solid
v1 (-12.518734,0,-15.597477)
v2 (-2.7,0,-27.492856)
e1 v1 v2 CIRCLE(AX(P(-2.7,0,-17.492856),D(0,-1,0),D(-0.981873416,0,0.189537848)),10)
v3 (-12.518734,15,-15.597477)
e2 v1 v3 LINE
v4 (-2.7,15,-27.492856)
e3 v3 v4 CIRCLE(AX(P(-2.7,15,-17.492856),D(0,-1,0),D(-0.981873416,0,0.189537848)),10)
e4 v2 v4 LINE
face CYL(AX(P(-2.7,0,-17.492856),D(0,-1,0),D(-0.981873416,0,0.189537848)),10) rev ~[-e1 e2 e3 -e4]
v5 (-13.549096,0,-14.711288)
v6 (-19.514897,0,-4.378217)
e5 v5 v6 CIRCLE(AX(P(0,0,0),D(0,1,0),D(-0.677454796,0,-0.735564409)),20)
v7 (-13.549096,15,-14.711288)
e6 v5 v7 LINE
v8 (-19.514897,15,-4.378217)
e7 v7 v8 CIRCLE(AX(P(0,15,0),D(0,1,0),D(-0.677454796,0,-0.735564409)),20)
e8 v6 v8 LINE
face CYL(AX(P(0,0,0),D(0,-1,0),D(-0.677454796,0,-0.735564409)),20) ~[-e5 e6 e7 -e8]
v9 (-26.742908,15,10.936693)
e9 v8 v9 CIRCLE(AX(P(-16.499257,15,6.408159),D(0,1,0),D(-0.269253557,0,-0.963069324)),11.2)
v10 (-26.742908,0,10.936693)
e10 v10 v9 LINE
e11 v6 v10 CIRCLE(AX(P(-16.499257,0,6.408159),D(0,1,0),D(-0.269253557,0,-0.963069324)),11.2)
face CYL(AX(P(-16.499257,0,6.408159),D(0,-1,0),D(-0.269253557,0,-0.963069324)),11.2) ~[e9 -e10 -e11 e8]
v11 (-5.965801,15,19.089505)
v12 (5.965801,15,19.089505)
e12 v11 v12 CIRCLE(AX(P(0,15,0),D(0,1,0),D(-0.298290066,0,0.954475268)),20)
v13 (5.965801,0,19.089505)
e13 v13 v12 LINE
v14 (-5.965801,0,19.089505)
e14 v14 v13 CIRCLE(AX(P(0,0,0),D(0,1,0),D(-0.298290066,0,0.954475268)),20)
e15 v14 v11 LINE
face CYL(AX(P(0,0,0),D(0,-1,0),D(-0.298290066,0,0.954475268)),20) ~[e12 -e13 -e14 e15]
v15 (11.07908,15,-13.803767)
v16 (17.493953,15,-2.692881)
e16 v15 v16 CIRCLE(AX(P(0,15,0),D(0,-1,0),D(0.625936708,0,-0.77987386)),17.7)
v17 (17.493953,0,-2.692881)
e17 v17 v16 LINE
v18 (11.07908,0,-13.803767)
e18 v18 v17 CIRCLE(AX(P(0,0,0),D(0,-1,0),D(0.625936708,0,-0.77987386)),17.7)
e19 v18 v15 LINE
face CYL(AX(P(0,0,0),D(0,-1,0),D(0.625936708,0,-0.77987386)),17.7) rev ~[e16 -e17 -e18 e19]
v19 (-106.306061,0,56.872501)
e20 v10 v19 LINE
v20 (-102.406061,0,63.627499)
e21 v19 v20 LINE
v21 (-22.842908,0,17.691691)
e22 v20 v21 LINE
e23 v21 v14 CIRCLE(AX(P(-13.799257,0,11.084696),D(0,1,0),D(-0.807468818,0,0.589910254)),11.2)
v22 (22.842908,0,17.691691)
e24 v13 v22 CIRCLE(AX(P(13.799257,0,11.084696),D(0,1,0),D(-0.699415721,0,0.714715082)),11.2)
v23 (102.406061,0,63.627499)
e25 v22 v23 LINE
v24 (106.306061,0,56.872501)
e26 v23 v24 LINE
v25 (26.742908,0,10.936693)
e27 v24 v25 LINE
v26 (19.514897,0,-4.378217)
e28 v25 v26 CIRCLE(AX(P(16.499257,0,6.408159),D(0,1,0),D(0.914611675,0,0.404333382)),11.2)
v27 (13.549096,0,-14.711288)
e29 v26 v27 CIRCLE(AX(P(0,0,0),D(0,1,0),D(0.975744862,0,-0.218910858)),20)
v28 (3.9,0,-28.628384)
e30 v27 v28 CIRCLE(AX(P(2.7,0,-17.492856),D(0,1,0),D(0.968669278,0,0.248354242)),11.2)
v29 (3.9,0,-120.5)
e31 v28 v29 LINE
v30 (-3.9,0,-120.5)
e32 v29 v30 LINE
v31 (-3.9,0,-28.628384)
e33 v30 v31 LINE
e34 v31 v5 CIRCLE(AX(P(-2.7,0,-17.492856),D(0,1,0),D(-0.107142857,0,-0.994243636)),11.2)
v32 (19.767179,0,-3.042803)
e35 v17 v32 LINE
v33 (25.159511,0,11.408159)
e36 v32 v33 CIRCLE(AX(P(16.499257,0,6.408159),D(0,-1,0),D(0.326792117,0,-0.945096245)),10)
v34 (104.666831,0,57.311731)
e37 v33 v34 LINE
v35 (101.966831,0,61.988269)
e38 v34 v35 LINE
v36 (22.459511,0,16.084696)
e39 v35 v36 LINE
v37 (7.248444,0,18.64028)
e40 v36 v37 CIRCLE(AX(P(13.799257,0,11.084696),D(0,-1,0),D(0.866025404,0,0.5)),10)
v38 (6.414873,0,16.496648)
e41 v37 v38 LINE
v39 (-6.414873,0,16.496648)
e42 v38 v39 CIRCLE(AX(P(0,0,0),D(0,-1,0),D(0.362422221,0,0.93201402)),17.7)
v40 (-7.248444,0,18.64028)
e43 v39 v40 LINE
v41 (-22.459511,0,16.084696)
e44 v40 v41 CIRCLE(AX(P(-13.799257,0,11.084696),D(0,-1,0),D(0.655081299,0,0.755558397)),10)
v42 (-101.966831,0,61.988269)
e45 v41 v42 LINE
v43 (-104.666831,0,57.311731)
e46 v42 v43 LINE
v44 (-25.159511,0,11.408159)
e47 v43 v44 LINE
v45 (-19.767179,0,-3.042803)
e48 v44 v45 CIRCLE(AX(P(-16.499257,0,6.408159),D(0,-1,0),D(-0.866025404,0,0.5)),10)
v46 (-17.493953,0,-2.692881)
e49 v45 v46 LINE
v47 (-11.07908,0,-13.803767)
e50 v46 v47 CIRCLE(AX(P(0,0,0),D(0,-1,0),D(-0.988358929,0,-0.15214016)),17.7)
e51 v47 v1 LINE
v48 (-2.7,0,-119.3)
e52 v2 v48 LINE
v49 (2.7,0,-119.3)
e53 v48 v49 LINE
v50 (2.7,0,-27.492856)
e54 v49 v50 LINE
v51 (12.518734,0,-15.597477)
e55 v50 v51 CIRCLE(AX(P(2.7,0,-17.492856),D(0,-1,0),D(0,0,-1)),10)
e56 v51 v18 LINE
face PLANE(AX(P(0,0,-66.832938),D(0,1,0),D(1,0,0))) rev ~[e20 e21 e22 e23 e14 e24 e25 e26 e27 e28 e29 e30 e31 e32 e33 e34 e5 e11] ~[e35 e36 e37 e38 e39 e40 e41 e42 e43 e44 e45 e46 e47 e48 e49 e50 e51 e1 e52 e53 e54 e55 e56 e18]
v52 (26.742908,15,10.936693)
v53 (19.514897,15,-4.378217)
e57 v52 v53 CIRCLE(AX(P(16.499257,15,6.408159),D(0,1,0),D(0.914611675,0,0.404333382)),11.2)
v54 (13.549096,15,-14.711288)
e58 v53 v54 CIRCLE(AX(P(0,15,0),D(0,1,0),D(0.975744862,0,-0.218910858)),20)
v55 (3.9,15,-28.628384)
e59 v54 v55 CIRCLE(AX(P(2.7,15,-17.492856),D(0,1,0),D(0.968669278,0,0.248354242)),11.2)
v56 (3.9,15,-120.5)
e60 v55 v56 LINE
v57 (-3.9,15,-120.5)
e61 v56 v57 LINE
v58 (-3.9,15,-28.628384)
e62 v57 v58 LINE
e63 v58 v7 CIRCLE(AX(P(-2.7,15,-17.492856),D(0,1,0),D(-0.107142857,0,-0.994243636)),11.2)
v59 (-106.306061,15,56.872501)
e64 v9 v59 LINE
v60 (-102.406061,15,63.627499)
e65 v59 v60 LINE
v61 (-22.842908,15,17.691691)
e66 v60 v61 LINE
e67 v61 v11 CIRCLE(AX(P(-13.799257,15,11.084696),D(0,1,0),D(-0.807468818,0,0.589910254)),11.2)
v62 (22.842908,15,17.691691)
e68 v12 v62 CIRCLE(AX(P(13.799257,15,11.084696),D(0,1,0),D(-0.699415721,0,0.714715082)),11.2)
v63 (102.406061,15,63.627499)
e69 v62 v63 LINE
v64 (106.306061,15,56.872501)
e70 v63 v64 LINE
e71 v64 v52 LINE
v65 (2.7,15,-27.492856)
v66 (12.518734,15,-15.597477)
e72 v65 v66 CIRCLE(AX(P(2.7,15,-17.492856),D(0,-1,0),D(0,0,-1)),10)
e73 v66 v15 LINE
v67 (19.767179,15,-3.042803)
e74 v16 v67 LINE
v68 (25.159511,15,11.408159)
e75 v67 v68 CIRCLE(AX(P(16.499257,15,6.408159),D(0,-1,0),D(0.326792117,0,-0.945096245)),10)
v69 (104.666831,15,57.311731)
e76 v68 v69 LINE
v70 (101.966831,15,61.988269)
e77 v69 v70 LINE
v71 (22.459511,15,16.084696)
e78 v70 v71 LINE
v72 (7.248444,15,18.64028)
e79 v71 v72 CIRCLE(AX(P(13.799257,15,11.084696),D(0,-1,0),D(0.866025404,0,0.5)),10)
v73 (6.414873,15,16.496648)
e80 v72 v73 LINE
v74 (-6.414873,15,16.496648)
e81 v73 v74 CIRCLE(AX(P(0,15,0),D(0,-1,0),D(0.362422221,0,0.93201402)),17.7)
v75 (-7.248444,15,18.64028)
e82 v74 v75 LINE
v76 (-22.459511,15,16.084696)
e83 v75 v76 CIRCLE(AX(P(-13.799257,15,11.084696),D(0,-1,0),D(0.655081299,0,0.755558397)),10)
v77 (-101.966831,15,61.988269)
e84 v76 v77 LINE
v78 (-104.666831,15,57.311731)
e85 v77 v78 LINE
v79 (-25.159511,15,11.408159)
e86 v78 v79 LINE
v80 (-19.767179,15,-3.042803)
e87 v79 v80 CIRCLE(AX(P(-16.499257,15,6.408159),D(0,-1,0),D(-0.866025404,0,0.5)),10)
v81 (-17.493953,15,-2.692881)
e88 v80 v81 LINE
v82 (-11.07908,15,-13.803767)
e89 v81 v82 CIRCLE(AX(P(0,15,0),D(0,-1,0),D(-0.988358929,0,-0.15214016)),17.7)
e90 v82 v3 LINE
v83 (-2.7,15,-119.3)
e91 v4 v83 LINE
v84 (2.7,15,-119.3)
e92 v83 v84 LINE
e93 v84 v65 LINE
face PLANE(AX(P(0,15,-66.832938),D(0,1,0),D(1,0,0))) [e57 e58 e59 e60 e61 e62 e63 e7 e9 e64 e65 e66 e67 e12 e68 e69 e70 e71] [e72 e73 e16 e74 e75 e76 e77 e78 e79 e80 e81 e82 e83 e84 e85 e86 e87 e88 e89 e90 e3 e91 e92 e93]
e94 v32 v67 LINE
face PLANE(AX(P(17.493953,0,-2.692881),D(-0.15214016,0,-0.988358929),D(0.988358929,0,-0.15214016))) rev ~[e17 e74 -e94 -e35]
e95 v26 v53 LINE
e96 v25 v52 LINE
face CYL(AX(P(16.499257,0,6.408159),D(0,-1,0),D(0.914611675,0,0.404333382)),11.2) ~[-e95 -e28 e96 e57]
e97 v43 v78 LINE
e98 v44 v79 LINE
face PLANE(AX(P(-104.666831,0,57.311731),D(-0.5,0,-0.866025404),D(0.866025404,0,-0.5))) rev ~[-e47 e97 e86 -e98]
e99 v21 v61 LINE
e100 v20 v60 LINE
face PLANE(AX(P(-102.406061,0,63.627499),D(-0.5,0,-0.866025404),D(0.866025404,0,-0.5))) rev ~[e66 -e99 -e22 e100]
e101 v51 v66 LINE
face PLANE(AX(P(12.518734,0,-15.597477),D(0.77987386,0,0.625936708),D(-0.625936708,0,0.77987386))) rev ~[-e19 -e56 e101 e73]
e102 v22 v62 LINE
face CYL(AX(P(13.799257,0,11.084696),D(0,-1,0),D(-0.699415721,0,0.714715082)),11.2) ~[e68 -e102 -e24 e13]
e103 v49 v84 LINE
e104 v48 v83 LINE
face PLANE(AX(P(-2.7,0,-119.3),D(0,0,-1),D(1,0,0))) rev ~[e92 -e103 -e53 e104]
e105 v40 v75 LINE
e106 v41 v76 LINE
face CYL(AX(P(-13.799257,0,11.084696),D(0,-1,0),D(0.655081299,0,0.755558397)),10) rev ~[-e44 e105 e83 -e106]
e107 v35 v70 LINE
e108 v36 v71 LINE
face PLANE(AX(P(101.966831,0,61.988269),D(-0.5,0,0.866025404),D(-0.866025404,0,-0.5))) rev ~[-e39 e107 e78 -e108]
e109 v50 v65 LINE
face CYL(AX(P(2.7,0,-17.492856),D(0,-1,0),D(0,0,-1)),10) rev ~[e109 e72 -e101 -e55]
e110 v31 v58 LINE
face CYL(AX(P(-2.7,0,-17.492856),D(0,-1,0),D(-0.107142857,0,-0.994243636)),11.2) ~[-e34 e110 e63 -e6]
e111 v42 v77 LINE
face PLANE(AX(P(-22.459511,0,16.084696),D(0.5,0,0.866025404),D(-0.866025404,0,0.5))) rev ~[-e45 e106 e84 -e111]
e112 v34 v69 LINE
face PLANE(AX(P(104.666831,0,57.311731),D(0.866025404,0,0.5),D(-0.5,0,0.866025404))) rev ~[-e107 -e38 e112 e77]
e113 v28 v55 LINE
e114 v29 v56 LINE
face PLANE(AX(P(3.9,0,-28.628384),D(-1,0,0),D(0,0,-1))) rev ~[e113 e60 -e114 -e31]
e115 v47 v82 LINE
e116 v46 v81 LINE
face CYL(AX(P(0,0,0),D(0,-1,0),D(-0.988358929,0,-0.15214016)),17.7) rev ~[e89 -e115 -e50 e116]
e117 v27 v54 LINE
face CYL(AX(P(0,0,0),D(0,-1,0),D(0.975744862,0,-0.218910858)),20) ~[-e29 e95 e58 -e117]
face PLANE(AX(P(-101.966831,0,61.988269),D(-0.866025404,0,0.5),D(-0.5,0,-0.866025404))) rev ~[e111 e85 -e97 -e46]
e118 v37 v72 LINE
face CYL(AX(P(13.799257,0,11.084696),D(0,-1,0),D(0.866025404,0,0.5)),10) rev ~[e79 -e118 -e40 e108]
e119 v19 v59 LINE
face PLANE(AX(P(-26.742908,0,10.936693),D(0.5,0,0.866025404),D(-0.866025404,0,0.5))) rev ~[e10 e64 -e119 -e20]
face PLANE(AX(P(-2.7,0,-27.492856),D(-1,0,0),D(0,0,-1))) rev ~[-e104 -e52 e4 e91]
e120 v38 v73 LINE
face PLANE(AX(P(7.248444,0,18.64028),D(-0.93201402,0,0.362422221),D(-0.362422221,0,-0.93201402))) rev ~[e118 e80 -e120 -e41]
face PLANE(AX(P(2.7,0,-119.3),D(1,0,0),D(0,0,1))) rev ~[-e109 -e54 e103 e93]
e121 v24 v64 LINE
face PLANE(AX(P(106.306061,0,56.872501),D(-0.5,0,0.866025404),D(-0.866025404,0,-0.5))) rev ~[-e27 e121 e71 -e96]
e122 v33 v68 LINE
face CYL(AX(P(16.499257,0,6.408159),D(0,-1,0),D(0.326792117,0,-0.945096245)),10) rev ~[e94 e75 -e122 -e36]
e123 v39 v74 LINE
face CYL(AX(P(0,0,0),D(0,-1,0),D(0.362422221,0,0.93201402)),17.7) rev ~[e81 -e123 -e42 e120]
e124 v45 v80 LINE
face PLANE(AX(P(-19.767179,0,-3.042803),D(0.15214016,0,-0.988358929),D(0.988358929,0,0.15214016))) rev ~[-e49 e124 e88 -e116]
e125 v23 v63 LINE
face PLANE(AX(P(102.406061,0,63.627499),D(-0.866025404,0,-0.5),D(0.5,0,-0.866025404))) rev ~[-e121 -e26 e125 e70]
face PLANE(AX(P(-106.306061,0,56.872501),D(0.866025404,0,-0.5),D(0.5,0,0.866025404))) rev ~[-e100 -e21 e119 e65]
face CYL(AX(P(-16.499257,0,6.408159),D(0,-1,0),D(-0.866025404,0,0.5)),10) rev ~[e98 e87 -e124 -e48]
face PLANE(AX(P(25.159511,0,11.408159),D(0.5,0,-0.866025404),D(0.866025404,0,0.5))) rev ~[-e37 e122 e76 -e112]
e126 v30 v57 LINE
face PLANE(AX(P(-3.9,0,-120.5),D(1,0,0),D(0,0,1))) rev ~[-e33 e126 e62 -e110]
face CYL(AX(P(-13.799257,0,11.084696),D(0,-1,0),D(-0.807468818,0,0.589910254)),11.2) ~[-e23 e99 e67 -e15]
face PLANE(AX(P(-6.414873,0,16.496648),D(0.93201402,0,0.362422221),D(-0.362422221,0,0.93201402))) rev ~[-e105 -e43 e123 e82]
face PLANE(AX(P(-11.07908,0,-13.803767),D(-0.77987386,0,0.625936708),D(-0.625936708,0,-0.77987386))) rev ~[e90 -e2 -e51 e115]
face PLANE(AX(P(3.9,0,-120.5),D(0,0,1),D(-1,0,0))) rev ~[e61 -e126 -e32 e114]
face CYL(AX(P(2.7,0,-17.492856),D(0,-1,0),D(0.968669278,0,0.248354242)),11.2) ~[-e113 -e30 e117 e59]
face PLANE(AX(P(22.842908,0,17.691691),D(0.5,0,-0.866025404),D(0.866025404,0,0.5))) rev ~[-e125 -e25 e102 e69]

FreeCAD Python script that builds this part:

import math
import FreeCAD as App
import Part
import Sketcher

V = App.Vector
Q = App.Units.Quantity

doc = App.newDocument("Part")
params = doc.addObject("Spreadsheet::Sheet", "Params")
for row, (alias, value) in enumerate([
    ("sketch1_radius", "20 mm"),
    ("sketch1_radius2", "10 mm"),
    ("sketch1_radius3", "11.2 mm"),
    ("sketch1_radius4", "17.7 mm"),
    ("sketch1_width", "7.8 mm"),
    ("pad1_length", "15 mm"),
], start=1):
    params.set(f"A{row}", alias)
    params.set(f"B{row}", "=" + value)
    params.setAlias(f"B{row}", alias)

body = doc.addObject("PartDesign::Body", "Body")

# Sketch on XZ plane
sketch1 = doc.addObject("Sketcher::SketchObject", "Sketch")
body.addObject(sketch1)
sketch1.AttachmentSupport = (doc.XZ_Plane, [""])
sketch1.MapMode = "FlatFace"
sketch1.addGeometry([
    Part.ArcOfCircle(Part.Circle(V(2.7, -17.5, 0), V(0, 0, 1), 11.2), math.radians(-84), math.radians(14)),  # 0
    Part.LineSegment(V(3.9, -28.6, 0), V(3.9, -120.5, 0)),  # 1
    Part.LineSegment(V(3.9, -120.5, 0), V(-3.9, -120.5, 0)),  # 2
    Part.LineSegment(V(-3.9, -120.5, 0), V(-3.9, -28.6, 0)),  # 3
    Part.ArcOfCircle(Part.Circle(V(-2.7, -17.5, 0), V(0, 0, 1), 11.2), math.radians(166), math.radians(264)),  # 4
    Part.ArcOfCircle(Part.Circle(V(0, 0, 0), V(0, 0, 1), 20), math.radians(-167), math.radians(-133)),  # 5
    Part.ArcOfCircle(Part.Circle(V(-16.5, 6.4, 0), V(0, 0, 1), 11.2), math.radians(156), math.radians(254)),  # 6
    Part.LineSegment(V(-26.7, 10.9, 0), V(-106.3, 56.9, 0)),  # 7
    Part.LineSegment(V(-106.3, 56.9, 0), V(-102.4, 63.6, 0)),  # 8
    Part.LineSegment(V(-102.4, 63.6, 0), V(-22.8, 17.7, 0)),  # 9
    Part.ArcOfCircle(Part.Circle(V(-13.8, 11.1, 0), V(0, 0, 1), 11.2), math.radians(46), math.radians(144)),  # 10
    Part.ArcOfCircle(Part.Circle(V(0, 0, 0), V(0, 0, 1), 20), math.radians(73), math.radians(107)),  # 11
    Part.ArcOfCircle(Part.Circle(V(13.8, 11.1, 0), V(0, 0, 1), 11.2), math.radians(36), math.radians(134)),  # 12
    Part.LineSegment(V(22.8, 17.7, 0), V(102.4, 63.6, 0)),  # 13
    Part.LineSegment(V(102.4, 63.6, 0), V(106.3, 56.9, 0)),  # 14
    Part.LineSegment(V(106.3, 56.9, 0), V(26.7, 10.9, 0)),  # 15
    Part.ArcOfCircle(Part.Circle(V(16.5, 6.4, 0), V(0, 0, 1), 11.2), math.radians(-74), math.radians(24)),  # 16
    Part.ArcOfCircle(Part.Circle(V(0, 0, 0), V(0, 0, 1), 20), math.radians(-47), math.radians(-13)),  # 17
    Part.LineSegment(V(7.2, 18.6, 0), V(6.4, 16.5, 0)),  # 18
    Part.ArcOfCircle(Part.Circle(V(0, 0, 0), V(0, 0, 1), 17.7), math.radians(69), math.radians(111)),  # 19
    Part.LineSegment(V(-6.4, 16.5, 0), V(-7.2, 18.6, 0)),  # 20
    Part.ArcOfCircle(Part.Circle(V(-13.8, 11.1, 0), V(0, 0, 1), 10), math.radians(49), math.radians(150)),  # 21
    Part.LineSegment(V(-22.5, 16.1, 0), V(-102, 62, 0)),  # 22
    Part.LineSegment(V(-102, 62, 0), V(-104.7, 57.3, 0)),  # 23
    Part.LineSegment(V(-104.7, 57.3, 0), V(-25.2, 11.4, 0)),  # 24
    Part.ArcOfCircle(Part.Circle(V(-16.5, 6.4, 0), V(0, 0, 1), 10), math.radians(150), math.radians(251)),  # 25
    Part.LineSegment(V(-19.8, -3, 0), V(-17.5, -2.7, 0)),  # 26
    Part.ArcOfCircle(Part.Circle(V(0, 0, 0), V(0, 0, 1), 17.7), math.radians(-171), math.radians(-129)),  # 27
    Part.LineSegment(V(-11.1, -13.8, 0), V(-12.5, -15.6, 0)),  # 28
    Part.ArcOfCircle(Part.Circle(V(-2.7, -17.5, 0), V(0, 0, 1), 10), math.radians(169), math.radians(270)),  # 29
    Part.LineSegment(V(-2.7, -27.5, 0), V(-2.7, -119.3, 0)),  # 30
    Part.LineSegment(V(-2.7, -119.3, 0), V(2.7, -119.3, 0)),  # 31
    Part.LineSegment(V(2.7, -119.3, 0), V(2.7, -27.5, 0)),  # 32
    Part.ArcOfCircle(Part.Circle(V(2.7, -17.5, 0), V(0, 0, 1), 10), math.radians(-90), math.radians(11)),  # 33
    Part.LineSegment(V(12.5, -15.6, 0), V(11.1, -13.8, 0)),  # 34
    Part.ArcOfCircle(Part.Circle(V(0, 0, 0), V(0, 0, 1), 17.7), math.radians(-51), math.radians(-9)),  # 35
    Part.LineSegment(V(17.5, -2.7, 0), V(19.8, -3, 0)),  # 36
    Part.ArcOfCircle(Part.Circle(V(16.5, 6.4, 0), V(0, 0, 1), 10), math.radians(-71), math.radians(30)),  # 37
    Part.LineSegment(V(25.2, 11.4, 0), V(104.7, 57.3, 0)),  # 38
    Part.LineSegment(V(104.7, 57.3, 0), V(102, 62, 0)),  # 39
    Part.LineSegment(V(102, 62, 0), V(22.5, 16.1, 0)),  # 40
    Part.ArcOfCircle(Part.Circle(V(13.8, 11.1, 0), V(0, 0, 1), 10), math.radians(30), math.radians(131)),  # 41
], False)
sketch1.addConstraint([
    Sketcher.Constraint("Coincident", 0, 1, 1, 1),
    Sketcher.Constraint("Coincident", 1, 2, 2, 1),
    Sketcher.Constraint("Coincident", 2, 2, 3, 1),
    Sketcher.Constraint("Coincident", 3, 2, 4, 2),
    Sketcher.Constraint("Coincident", 4, 1, 5, 2),
    Sketcher.Constraint("Coincident", 5, 1, 6, 2),
    Sketcher.Constraint("Coincident", 6, 1, 7, 1),
    Sketcher.Constraint("Coincident", 7, 2, 8, 1),
    Sketcher.Constraint("Coincident", 8, 2, 9, 1),
    Sketcher.Constraint("Coincident", 9, 2, 10, 2),
    Sketcher.Constraint("Coincident", 10, 1, 11, 2),
    Sketcher.Constraint("Coincident", 11, 1, 12, 2),
    Sketcher.Constraint("Coincident", 12, 1, 13, 1),
    Sketcher.Constraint("Coincident", 13, 2, 14, 1),
    Sketcher.Constraint("Coincident", 14, 2, 15, 1),
    Sketcher.Constraint("Coincident", 15, 2, 16, 2),
    Sketcher.Constraint("Coincident", 16, 1, 17, 2),
    Sketcher.Constraint("Coincident", 17, 1, 0, 2),
    Sketcher.Constraint("Coincident", 18, 2, 19, 1),
    Sketcher.Constraint("Coincident", 19, 2, 20, 1),
    Sketcher.Constraint("Coincident", 20, 2, 21, 1),
    Sketcher.Constraint("Coincident", 21, 2, 22, 1),
    Sketcher.Constraint("Coincident", 22, 2, 23, 1),
    Sketcher.Constraint("Coincident", 23, 2, 24, 1),
    Sketcher.Constraint("Coincident", 24, 2, 25, 1),
    Sketcher.Constraint("Coincident", 25, 2, 26, 1),
    Sketcher.Constraint("Coincident", 26, 2, 27, 1),
    Sketcher.Constraint("Coincident", 27, 2, 28, 1),
    Sketcher.Constraint("Coincident", 28, 2, 29, 1),
    Sketcher.Constraint("Coincident", 29, 2, 30, 1),
    Sketcher.Constraint("Coincident", 30, 2, 31, 1),
    Sketcher.Constraint("Coincident", 31, 2, 32, 1),
    Sketcher.Constraint("Coincident", 32, 2, 33, 1),
    Sketcher.Constraint("Coincident", 33, 2, 34, 1),
    Sketcher.Constraint("Coincident", 34, 2, 35, 1),
    Sketcher.Constraint("Coincident", 35, 2, 36, 1),
    Sketcher.Constraint("Coincident", 36, 2, 37, 1),
    Sketcher.Constraint("Coincident", 37, 2, 38, 1),
    Sketcher.Constraint("Coincident", 38, 2, 39, 1),
    Sketcher.Constraint("Coincident", 39, 2, 40, 1),
    Sketcher.Constraint("Coincident", 40, 2, 41, 1),
    Sketcher.Constraint("Coincident", 41, 2, 18, 1),
    Sketcher.Constraint("Vertical", 1),
    Sketcher.Constraint("Horizontal", 2),
    Sketcher.Constraint("Vertical", 3),
    Sketcher.Constraint("Vertical", 30),
    Sketcher.Constraint("Horizontal", 31),
    Sketcher.Constraint("Vertical", 32),
    Sketcher.Constraint("Coincident", 5, 3, -1, 1),
    Sketcher.Constraint("Coincident", 11, 3, -1, 1),
    Sketcher.Constraint("Coincident", 17, 3, -1, 1),
    Sketcher.Constraint("Coincident", 19, 3, -1, 1),
    Sketcher.Constraint("Coincident", 27, 3, -1, 1),
    Sketcher.Constraint("Coincident", 35, 3, -1, 1),
    Sketcher.Constraint("Coincident", 21, 3, 10, 3),
    Sketcher.Constraint("Coincident", 25, 3, 6, 3),
    Sketcher.Constraint("Coincident", 29, 3, 4, 3),
    Sketcher.Constraint("Coincident", 33, 3, 0, 3),
    Sketcher.Constraint("Coincident", 37, 3, 16, 3),
    Sketcher.Constraint("Coincident", 41, 3, 12, 3),
    Sketcher.Constraint("Equal", 0, 4),
    Sketcher.Constraint("Equal", 4, 6),
    Sketcher.Constraint("Equal", 6, 10),
    Sketcher.Constraint("Equal", 5, 11),
    Sketcher.Constraint("Equal", 10, 12),
    Sketcher.Constraint("Equal", 12, 16),
    Sketcher.Constraint("Equal", 11, 17),
    Sketcher.Constraint("Equal", 21, 25),
    Sketcher.Constraint("Equal", 19, 27),
    Sketcher.Constraint("Equal", 25, 29),
    Sketcher.Constraint("Equal", 29, 33),
    Sketcher.Constraint("Equal", 27, 35),
    Sketcher.Constraint("Equal", 33, 37),
    Sketcher.Constraint("Equal", 37, 41),
    Sketcher.Constraint("Symmetric", 0, 3, 4, 3, -2),
    Sketcher.Constraint("Symmetric", 10, 3, 12, 3, -2),
    Sketcher.Constraint("Symmetric", 6, 3, 16, 3, -2),
    Sketcher.Constraint("Symmetric", 8, 2, 13, 2, -2),
    Sketcher.Constraint("Symmetric", 7, 2, 14, 2, -2),
    Sketcher.Constraint("Symmetric", 23, 2, 38, 2, -2),
    Sketcher.Constraint("Symmetric", 22, 2, 39, 2, -2),
    Sketcher.Constraint("Perpendicular", 7, 8),
    Sketcher.Constraint("Perpendicular", 8, 9),
    Sketcher.Constraint("Perpendicular", 13, 14),
    Sketcher.Constraint("Perpendicular", 14, 15),
    Sketcher.Constraint("Parallel", 9, 22),
    Sketcher.Constraint("Perpendicular", 22, 23),
    Sketcher.Constraint("Perpendicular", 23, 24),
    Sketcher.Constraint("Parallel", 15, 38),
    Sketcher.Constraint("Perpendicular", 39, 40),
    Sketcher.Constraint("Horizontal", 0, 1, 3, 2),
    Sketcher.Constraint("Horizontal", 18, 2, 19, 2),
    Sketcher.Constraint("Horizontal", 28, 2, 33, 2),
    Sketcher.Constraint("Horizontal", 27, 2, 34, 2),
    Sketcher.Constraint("Horizontal", 26, 2, 35, 2),
    Sketcher.Constraint("Horizontal", 25, 2, 36, 2),
    Sketcher.Constraint("Horizontal", 20, 2, 41, 2),
    Sketcher.Constraint("Vertical", 4, 3, 29, 2),
    Sketcher.Constraint("Vertical", 33, 3, 31, 2),
    Sketcher.Constraint("Equal", 7, 9),
    Sketcher.Constraint("Equal", 22, 24),
    Sketcher.Constraint("Equal", 20, 26),
    Sketcher.Constraint("Equal", 26, 28),
    Sketcher.Constraint("Radius", 5, 20.0),
    Sketcher.Constraint("Radius", 21, 10.0),
    Sketcher.Constraint("Radius", 0, 11.2),
    Sketcher.Constraint("Radius", 19, 17.7),
    Sketcher.Constraint("Angle", 7, Q("150 deg")),
    Sketcher.Constraint("DistanceX", 2, 2, 2, 1, 7.8),
    Sketcher.Constraint("DistanceX", 31, 1, 31, 2, 5.4),
    Sketcher.Constraint("DistanceY", 21, 3, 21, 2, 5.0),
    Sketcher.Constraint("DistanceY", 6, 3, 24, 2, 5.0),
    Sketcher.Constraint("Distance", 8, 7.8),
    Sketcher.Constraint("Distance", 18, 2.3),
    Sketcher.Constraint("Distance", 23, 5.4),
    Sketcher.Constraint("DistanceY", 1, 2, -1, 1, 120.5),
    Sketcher.Constraint("DistanceY", 30, 2, -1, 1, 119.3),
    Sketcher.Constraint("DistanceY", -1, 1, 7, 2, 56.872501),
    Sketcher.Constraint("DistanceX", 10, 1, -1, 1, 5.965801),
    Sketcher.Constraint("DistanceX", 5, 1, 4, 1, 5.965801),
    Sketcher.Constraint("DistanceY", 25, 2, 10, 3, 14.1275),
    Sketcher.Constraint("DistanceY", -1, 1, 18, 2, 16.496648),
    Sketcher.Constraint("DistanceX", 22, 2, -1, 1, 101.966831),
    Sketcher.Constraint("DistanceY", 26, 2, -1, 1, 2.692881),
    Sketcher.Constraint("DistanceX", 27, 2, -1, 1, 11.07908),
])
sketch1.setExpression("Constraints[103]", "Params.sketch1_radius")
sketch1.setExpression("Constraints[104]", "Params.sketch1_radius2")
sketch1.setExpression("Constraints[105]", "Params.sketch1_radius3")
sketch1.setExpression("Constraints[106]", "Params.sketch1_radius4")
sketch1.setExpression("Constraints[108]", "Params.sketch1_width")
pad1 = doc.addObject("PartDesign::Pad", "Pad")
body.addObject(pad1)
pad1.Profile = sketch1
pad1.setExpression("Length", "Params.pad1_length")
pad1.Reversed = True

doc.recompute()
